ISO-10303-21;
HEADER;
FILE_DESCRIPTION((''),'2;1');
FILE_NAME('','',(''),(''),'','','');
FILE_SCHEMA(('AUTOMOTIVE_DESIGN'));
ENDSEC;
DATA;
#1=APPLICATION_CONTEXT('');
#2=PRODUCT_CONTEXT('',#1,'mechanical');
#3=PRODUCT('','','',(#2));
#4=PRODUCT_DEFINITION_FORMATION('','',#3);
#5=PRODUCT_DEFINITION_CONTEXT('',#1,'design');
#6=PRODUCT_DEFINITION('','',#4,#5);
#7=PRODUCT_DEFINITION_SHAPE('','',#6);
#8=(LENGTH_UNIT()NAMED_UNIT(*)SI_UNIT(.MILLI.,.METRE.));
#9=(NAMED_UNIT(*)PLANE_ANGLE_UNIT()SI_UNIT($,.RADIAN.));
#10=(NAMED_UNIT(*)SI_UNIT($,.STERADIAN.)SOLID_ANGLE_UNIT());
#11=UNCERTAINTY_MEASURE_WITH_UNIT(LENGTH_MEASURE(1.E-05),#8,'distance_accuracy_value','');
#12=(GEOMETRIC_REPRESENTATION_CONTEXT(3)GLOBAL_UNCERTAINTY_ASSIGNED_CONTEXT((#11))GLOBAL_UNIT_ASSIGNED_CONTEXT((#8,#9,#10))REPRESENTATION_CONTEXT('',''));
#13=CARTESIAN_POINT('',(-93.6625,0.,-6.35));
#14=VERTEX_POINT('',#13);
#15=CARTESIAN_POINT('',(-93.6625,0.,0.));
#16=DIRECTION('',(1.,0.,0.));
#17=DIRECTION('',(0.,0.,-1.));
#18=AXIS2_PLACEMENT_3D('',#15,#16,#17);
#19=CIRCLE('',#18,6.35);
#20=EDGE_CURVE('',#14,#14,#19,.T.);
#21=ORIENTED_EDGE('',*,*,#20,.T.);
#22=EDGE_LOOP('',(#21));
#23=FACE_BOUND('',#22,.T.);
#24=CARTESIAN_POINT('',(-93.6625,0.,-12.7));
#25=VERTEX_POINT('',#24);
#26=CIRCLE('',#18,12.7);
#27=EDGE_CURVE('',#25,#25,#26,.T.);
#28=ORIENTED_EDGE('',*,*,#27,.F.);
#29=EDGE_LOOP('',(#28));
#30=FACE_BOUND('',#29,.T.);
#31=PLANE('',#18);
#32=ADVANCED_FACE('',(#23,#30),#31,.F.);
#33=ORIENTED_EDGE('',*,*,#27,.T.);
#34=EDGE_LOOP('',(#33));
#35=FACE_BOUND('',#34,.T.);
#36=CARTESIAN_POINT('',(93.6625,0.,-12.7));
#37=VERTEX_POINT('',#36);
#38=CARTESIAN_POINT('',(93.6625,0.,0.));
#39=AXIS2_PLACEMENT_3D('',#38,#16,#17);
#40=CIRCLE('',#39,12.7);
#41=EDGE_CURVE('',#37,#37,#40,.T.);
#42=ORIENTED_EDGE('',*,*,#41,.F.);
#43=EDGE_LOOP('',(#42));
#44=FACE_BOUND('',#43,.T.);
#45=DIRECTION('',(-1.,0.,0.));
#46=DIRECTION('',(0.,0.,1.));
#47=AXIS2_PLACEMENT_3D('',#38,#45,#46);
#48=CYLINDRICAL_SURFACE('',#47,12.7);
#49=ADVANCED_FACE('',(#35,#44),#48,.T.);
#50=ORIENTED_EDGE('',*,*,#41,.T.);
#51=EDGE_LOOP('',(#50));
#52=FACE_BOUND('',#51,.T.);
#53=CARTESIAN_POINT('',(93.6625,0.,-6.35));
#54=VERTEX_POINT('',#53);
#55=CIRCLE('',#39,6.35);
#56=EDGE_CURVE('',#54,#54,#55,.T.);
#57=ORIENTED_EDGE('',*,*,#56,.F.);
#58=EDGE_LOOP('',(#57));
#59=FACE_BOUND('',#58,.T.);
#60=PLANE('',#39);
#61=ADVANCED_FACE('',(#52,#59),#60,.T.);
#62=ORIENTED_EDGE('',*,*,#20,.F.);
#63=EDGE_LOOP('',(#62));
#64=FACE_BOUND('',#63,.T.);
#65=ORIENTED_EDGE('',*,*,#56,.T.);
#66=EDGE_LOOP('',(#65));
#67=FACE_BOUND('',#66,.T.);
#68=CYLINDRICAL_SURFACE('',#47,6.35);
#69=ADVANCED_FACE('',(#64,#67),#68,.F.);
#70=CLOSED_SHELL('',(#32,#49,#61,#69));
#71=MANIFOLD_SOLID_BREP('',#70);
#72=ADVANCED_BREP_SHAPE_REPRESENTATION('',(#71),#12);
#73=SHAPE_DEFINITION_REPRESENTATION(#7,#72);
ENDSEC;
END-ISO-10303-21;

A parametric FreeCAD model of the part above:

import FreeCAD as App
import Part
import Sketcher
Q = App.Units.Quantity

doc = App.newDocument("Part")
body = doc.addObject("PartDesign::Body", "Body")

sketch1 = body.newObject("Sketcher::SketchObject", "Sketch")
sketch1.AttachmentSupport = (doc.getObject("YZ_Plane"), [""])
sketch1.MapMode = "FlatFace"
sketch1.addGeometry([
    Part.Circle(App.Vector(0, 0, 0), App.Vector(0, 0, 1), 13),
    Part.Circle(App.Vector(0, 0, 0), App.Vector(0, 0, 1), 6),
], False)
sketch1.addConstraint([
    Sketcher.Constraint("Coincident", 0, 3, -1, 1),
    Sketcher.Constraint("Coincident", 1, 3, -1, 1),
    Sketcher.Constraint("Diameter", 0, Q("1 in")),
    Sketcher.Constraint("Diameter", 1, Q("0.5 in")),
])
pad1 = body.newObject("PartDesign::Pad", "Pad")
pad1.Profile = sketch1
pad1.Length = Q("7.375 in")
pad1.Midplane = True

doc.recompute()
